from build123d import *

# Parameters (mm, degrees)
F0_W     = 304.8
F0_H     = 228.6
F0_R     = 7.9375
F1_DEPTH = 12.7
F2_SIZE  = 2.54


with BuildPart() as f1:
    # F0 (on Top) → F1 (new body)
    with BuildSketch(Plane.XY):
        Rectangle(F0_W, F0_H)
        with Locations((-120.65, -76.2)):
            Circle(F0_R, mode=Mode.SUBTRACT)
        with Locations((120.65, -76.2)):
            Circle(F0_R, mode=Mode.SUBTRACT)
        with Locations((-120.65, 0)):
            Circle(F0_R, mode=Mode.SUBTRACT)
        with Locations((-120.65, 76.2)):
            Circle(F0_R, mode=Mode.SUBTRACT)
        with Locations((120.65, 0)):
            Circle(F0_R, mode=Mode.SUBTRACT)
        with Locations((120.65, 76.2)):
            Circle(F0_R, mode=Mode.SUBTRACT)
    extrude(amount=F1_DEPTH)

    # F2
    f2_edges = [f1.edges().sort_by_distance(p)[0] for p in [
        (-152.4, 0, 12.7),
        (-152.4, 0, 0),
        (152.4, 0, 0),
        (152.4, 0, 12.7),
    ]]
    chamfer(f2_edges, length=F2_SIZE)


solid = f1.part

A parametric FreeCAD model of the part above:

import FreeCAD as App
import Part
import Sketcher

V = App.Vector
Q = App.Units.Quantity


def edges_at(feature, points):
    """Names of the edges that pass closest to the given points."""
    edges = feature.Shape.Edges
    near = lambda p: min(range(len(edges)), key=lambda i: edges[i].distToShape(Part.Vertex(*p))[0])
    return sorted({f"Edge{near(p) + 1}" for p in points})


def add_polygon(sketch, points):
    """Adds a closed chain of lines whose ends are joined by coincident constraints."""
    first, n = sketch.GeometryCount, len(points)
    for a, b in zip(points, points[1:] + points[:1]):
        sketch.addGeometry(Part.LineSegment(App.Vector(*a, 0), App.Vector(*b, 0)), False)
    for i in range(n):
        sketch.addConstraint(Sketcher.Constraint("Coincident", first + i, 2, first + (i + 1) % n, 1))

doc = App.newDocument("Part")
params = doc.addObject("Spreadsheet::Sheet", "Params")
for row, (alias, value) in enumerate([
    ("sketch1_width", "12 in"),
    ("sketch1_height", "9 in"),
    ("sketch1_diameter", "0.625 in"),
    ("pad1_length", "0.5 in"),
    ("chamfer_size", "0.1 in"),
], start=1):
    params.set(f"A{row}", alias)
    params.set(f"B{row}", "=" + value)
    params.setAlias(f"B{row}", alias)

body = doc.addObject("PartDesign::Body", "Body")

# Sketch on XY plane
sketch1 = doc.addObject("Sketcher::SketchObject", "Sketch")
body.addObject(sketch1)
sketch1.AttachmentSupport = (doc.XY_Plane, [""])
sketch1.MapMode = "FlatFace"
add_polygon(sketch1, [(-152, 114), (-152, -114), (152, -114), (152, 114)])  # lines 0-3
sketch1.addGeometry(Part.Circle(V(-121, -76, 0), V(0, 0, 1), 8), False)  # 4
sketch1.addGeometry(Part.Circle(V(121, -76, 0), V(0, 0, 1), 8), False)  # 5
sketch1.addGeometry(Part.Circle(V(-121, 0, 0), V(0, 0, 1), 8), False)  # 6
sketch1.addGeometry(Part.Circle(V(-121, 76, 0), V(0, 0, 1), 8), False)  # 7
sketch1.addGeometry(Part.Circle(V(121, 0, 0), V(0, 0, 1), 8), False)  # 8
sketch1.addGeometry(Part.Circle(V(121, 76, 0), V(0, 0, 1), 8), False)  # 9
sketch1.addConstraint([
    Sketcher.Constraint("Vertical", 0),
    Sketcher.Constraint("Horizontal", 1),
    Sketcher.Constraint("Vertical", 2),
    Sketcher.Constraint("Horizontal", 3),
    Sketcher.Constraint("Equal", 4, 5),
    Sketcher.Constraint("Equal", 5, 6),
    Sketcher.Constraint("Equal", 6, 7),
    Sketcher.Constraint("Equal", 7, 8),
    Sketcher.Constraint("Equal", 8, 9),
    Sketcher.Constraint("Symmetric", 5, 3, 7, 3, -1, 1),
    Sketcher.Constraint("Symmetric", 6, 3, 8, 3, -1, 1),
    Sketcher.Constraint("Symmetric", 4, 3, 9, 3, -1, 1),
    Sketcher.Constraint("Symmetric", 0, 2, 2, 2, -1, 1),
    Sketcher.Constraint("Symmetric", 4, 3, 5, 3, -2),
    Sketcher.Constraint("PointOnObject", 6, 3, -1),
    Sketcher.Constraint("Vertical", 4, 3, 6, 3),
    Sketcher.Constraint("DistanceX", 1, 1, 1, 2, Q("12 in")),
    Sketcher.Constraint("DistanceY", 0, 2, 0, 1, Q("9 in")),
    Sketcher.Constraint("Diameter", 4, Q("0.625 in")),
    Sketcher.Constraint("DistanceY", 4, 3, -1, 1, Q("3 in")),
    Sketcher.Constraint("DistanceX", 4, 3, 5, 3, Q("9.5 in")),
])
sketch1.setExpression("Constraints[20]", "Params.sketch1_width")
sketch1.setExpression("Constraints[21]", "Params.sketch1_height")
sketch1.setExpression("Constraints[22]", "Params.sketch1_diameter")
pad1 = doc.addObject("PartDesign::Pad", "Pad")
body.addObject(pad1)
pad1.Profile = sketch1
pad1.setExpression("Length", "Params.pad1_length")
doc.recompute()

chamfer = doc.addObject("PartDesign::Chamfer", "Chamfer")
body.addObject(chamfer)
chamfer.Base = (pad1, edges_at(pad1, [
    (-152.4, 0, 12.7),
    (-152.4, 0, 0),
    (152.4, 0, 0),
    (152.4, 0, 12.7),
]))
chamfer.setExpression("Size", "Params.chamfer_size")

doc.recompute()
